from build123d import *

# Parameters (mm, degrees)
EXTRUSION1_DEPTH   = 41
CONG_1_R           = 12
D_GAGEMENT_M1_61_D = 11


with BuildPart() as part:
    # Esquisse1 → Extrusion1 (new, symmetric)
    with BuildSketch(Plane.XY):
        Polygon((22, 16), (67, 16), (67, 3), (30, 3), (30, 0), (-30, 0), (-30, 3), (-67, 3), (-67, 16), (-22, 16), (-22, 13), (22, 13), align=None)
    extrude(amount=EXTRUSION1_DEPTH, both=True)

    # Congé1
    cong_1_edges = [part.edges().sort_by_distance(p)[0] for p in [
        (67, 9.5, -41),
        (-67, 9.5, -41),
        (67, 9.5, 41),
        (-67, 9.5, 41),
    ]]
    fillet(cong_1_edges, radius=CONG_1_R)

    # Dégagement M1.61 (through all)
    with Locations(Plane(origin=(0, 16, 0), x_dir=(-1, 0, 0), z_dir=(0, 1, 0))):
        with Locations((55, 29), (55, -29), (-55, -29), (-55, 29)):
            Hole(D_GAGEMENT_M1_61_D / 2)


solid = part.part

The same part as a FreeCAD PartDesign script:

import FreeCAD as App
import Part
import Sketcher


def edges_at(feature, points):
    """Names of the edges that pass closest to the given points."""
    edges = feature.Shape.Edges
    near = lambda p: min(range(len(edges)), key=lambda i: edges[i].distToShape(Part.Vertex(*p))[0])
    return sorted({f"Edge{near(p) + 1}" for p in points})


def add_polygon(sketch, points):
    """Adds a closed chain of lines whose ends are joined by coincident constraints."""
    first, n = sketch.GeometryCount, len(points)
    for a, b in zip(points, points[1:] + points[:1]):
        sketch.addGeometry(Part.LineSegment(App.Vector(*a, 0), App.Vector(*b, 0)), False)
    for i in range(n):
        sketch.addConstraint(Sketcher.Constraint("Coincident", first + i, 2, first + (i + 1) % n, 1))

doc = App.newDocument("Part")
body = doc.addObject("PartDesign::Body", "Body")

sketch1 = doc.addObject("Sketcher::SketchObject", "Sketch")
body.addObject(sketch1)
sketch1.AttachmentSupport = (doc.XY_Plane, [""])
sketch1.MapMode = "FlatFace"
add_polygon(sketch1, [(67, 16), (22, 16), (22, 13), (-22, 13), (-22, 16), (-67, 16), (-67, 3), (-30, 3), (-30, 0), (30, 0), (30, 3), (67, 3)])
sketch1.addConstraint([
    Sketcher.Constraint("Horizontal", 0),
    Sketcher.Constraint("Vertical", 1),
    Sketcher.Constraint("Horizontal", 2),
    Sketcher.Constraint("Vertical", 3),
    Sketcher.Constraint("Horizontal", 4),
    Sketcher.Constraint("Vertical", 5),
    Sketcher.Constraint("Horizontal", 6),
    Sketcher.Constraint("Vertical", 7),
    Sketcher.Constraint("Horizontal", 8),
    Sketcher.Constraint("Vertical", 9),
    Sketcher.Constraint("Horizontal", 10),
    Sketcher.Constraint("Vertical", 11),
    Sketcher.Constraint("Symmetric", 7, 2, 8, 2, -1, 1),
    Sketcher.Constraint("Symmetric", 0, 2, 3, 2, -2),
    Sketcher.Constraint("Symmetric", 5, 2, 10, 2, -2),
    Sketcher.Constraint("Equal", 3, 7),
    Sketcher.Constraint("DistanceX", 0, 2, 0, 1, 45.0),
    Sketcher.Constraint("DistanceX", 2, 2, 2, 1, 44.0),
    Sketcher.Constraint("DistanceX", 6, 1, 6, 2, 37.0),
    Sketcher.Constraint("DistanceY", 1, 2, 1, 1, 3.0),
    Sketcher.Constraint("DistanceY", 5, 2, 5, 1, 13.0),
])
pad1 = doc.addObject("PartDesign::Pad", "Pad")
body.addObject(pad1)
pad1.Profile = sketch1
pad1.Length = 82
pad1.Midplane = True
doc.recompute()

fillet = doc.addObject("PartDesign::Fillet", "Fillet")
body.addObject(fillet)
fillet.Base = (pad1, edges_at(pad1, [
    (67, 9.5, -41),
    (-67, 9.5, -41),
    (67, 9.5, 41),
    (-67, 9.5, 41),
]))
fillet.Radius = 12

sketch2 = doc.addObject("Sketcher::SketchObject", "Sketch001")
body.addObject(sketch2)
sketch2.AttachmentSupport = (doc.XZ_Plane, [""])
sketch2.MapMode = "FlatFace"
sketch2.AttachmentOffset = App.Placement(App.Vector(0, 0, -16), App.Rotation())
sketch2.addGeometry([
    Part.Circle(App.Vector(-55, 29, 0), App.Vector(0, 0, 1), 6),
    Part.Circle(App.Vector(-55, -29, 0), App.Vector(0, 0, 1), 6),
    Part.Circle(App.Vector(55, -29, 0), App.Vector(0, 0, 1), 6),
    Part.Circle(App.Vector(55, 29, 0), App.Vector(0, 0, 1), 6),
], False)
sketch2.addConstraint([
    Sketcher.Constraint("Equal", 0, 1),
    Sketcher.Constraint("Equal", 1, 2),
    Sketcher.Constraint("Equal", 2, 3),
    Sketcher.Constraint("Symmetric", 0, 3, 2, 3, -1, 1),
    Sketcher.Constraint("Symmetric", 1, 3, 3, 3, -1, 1),
    Sketcher.Constraint("Symmetric", 1, 3, 2, 3, -2),
    Sketcher.Constraint("Diameter", 0, 11.0),
    Sketcher.Constraint("DistanceX", 0, 3, -1, 1, 55.0),
    Sketcher.Constraint("DistanceY", -1, 1, 0, 3, 29.0),
])
doc.recompute()
hole = doc.addObject("PartDesign::Hole", "Hole")
body.addObject(hole)
hole.Profile = sketch2
hole.ThreadType = "None"
hole.Diameter = 11
hole.DepthType = "ThroughAll"
hole.Reversed = True

doc.recompute()
